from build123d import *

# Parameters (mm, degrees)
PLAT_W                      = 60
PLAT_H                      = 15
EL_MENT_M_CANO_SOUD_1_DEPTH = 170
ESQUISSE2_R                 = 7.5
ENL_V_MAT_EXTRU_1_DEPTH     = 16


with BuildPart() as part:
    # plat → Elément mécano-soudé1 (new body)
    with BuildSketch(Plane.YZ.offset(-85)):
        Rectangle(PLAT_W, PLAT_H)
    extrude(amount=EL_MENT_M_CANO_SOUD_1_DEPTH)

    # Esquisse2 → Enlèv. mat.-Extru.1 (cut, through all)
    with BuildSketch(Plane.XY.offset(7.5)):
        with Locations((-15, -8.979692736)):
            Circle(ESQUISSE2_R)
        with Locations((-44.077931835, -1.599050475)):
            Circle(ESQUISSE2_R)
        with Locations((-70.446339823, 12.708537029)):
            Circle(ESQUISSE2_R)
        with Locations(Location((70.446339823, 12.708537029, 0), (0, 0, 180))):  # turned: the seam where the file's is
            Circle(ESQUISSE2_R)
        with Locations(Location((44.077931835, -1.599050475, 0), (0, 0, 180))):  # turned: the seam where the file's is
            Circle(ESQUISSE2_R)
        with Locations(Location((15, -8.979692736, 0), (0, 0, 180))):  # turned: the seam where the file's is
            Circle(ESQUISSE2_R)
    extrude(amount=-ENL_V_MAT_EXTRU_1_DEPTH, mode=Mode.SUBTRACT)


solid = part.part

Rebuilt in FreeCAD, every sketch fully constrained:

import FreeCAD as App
import Part
import Sketcher
Q = App.Units.Quantity


def add_polygon(sketch, points):
    """Adds a closed chain of lines whose ends are joined by coincident constraints."""
    first, n = sketch.GeometryCount, len(points)
    for a, b in zip(points, points[1:] + points[:1]):
        sketch.addGeometry(Part.LineSegment(App.Vector(*a, 0), App.Vector(*b, 0)), False)
    for i in range(n):
        sketch.addConstraint(Sketcher.Constraint("Coincident", first + i, 2, first + (i + 1) % n, 1))

doc = App.newDocument("Part")
body = doc.addObject("PartDesign::Body", "Body")

sketch1 = body.newObject("Sketcher::SketchObject", "Sketch")
sketch1.AttachmentSupport = (doc.getObject("YZ_Plane"), [""])
sketch1.MapMode = "FlatFace"
sketch1.AttachmentOffset = App.Placement(App.Vector(0, 0, -85), App.Rotation())
add_polygon(sketch1, [(-30, 8), (-30, -8), (30, -8), (30, 8)])
sketch1.addConstraint(Sketcher.Constraint("Vertical", 0))
sketch1.addConstraint(Sketcher.Constraint("Horizontal", 1))
sketch1.addConstraint(Sketcher.Constraint("Vertical", 2))
sketch1.addConstraint(Sketcher.Constraint("Horizontal", 3))
sketch1.addConstraint(Sketcher.Constraint("Symmetric", 0, 2, 2, 2, -1, 1))
sketch1.addConstraint(Sketcher.Constraint("DistanceX", 1, 1, 1, 2, Q("60 mm")))
sketch1.addConstraint(Sketcher.Constraint("DistanceY", 0, 2, 0, 1, Q("15 mm")))
pad1 = body.newObject("PartDesign::Pad", "Pad")
pad1.Profile = sketch1
pad1.Length = 170

sketch2 = body.newObject("Sketcher::SketchObject", "Sketch001")
sketch2.AttachmentSupport = (doc.getObject("XY_Plane"), [""])
sketch2.MapMode = "FlatFace"
sketch2.AttachmentOffset = App.Placement(App.Vector(0, 0, 7.5), App.Rotation())
sketch2.addGeometry(Part.Circle(App.Vector(-15, -9, 0), App.Vector(0, 0, 1), 8), False)
sketch2.addGeometry(Part.Circle(App.Vector(-44, -2, 0), App.Vector(0, 0, 1), 8), False)
sketch2.addGeometry(Part.Circle(App.Vector(-70, 13, 0), App.Vector(0, 0, 1), 8), False)
sketch2.addGeometry(Part.Circle(App.Vector(70, 13, 0), App.Vector(0, 0, 1), 8), False)
sketch2.addGeometry(Part.Circle(App.Vector(44, -2, 0), App.Vector(0, 0, 1), 8), False)
sketch2.addGeometry(Part.Circle(App.Vector(15, -9, 0), App.Vector(0, 0, 1), 8), False)
sketch2.addConstraint(Sketcher.Constraint("Equal", 0, 1))
sketch2.addConstraint(Sketcher.Constraint("Equal", 1, 2))
sketch2.addConstraint(Sketcher.Constraint("Equal", 2, 3))
sketch2.addConstraint(Sketcher.Constraint("Equal", 3, 4))
sketch2.addConstraint(Sketcher.Constraint("Equal", 4, 5))
sketch2.addConstraint(Sketcher.Constraint("Symmetric", 2, 3, 3, 3, -2))
sketch2.addConstraint(Sketcher.Constraint("Symmetric", 1, 3, 4, 3, -2))
sketch2.addConstraint(Sketcher.Constraint("Symmetric", 0, 3, 5, 3, -2))
sketch2.addConstraint(Sketcher.Constraint("Diameter", 0, Q("15 mm")))
sketch2.addConstraint(Sketcher.Constraint("DistanceX", 0, 3, -1, 1, Q("15 mm")))
sketch2.addConstraint(Sketcher.Constraint("DistanceX", 1, 3, -1, 1, Q("44.077932 mm")))
sketch2.addConstraint(Sketcher.Constraint("DistanceY", 1, 3, -1, 1, Q("1.59905 mm")))
sketch2.addConstraint(Sketcher.Constraint("DistanceX", 2, 3, -1, 1, Q("70.44634 mm")))
sketch2.addConstraint(Sketcher.Constraint("DistanceY", 0, 3, 2, 3, Q("21.68823 mm")))
sketch2.addConstraint(Sketcher.Constraint("DistanceY", 0, 3, -1, 1, Q("8.979693 mm")))
pocket1 = body.newObject("PartDesign::Pocket", "Pocket")
pocket1.Profile = sketch2
pocket1.Type = "ThroughAll"

doc.recompute()
